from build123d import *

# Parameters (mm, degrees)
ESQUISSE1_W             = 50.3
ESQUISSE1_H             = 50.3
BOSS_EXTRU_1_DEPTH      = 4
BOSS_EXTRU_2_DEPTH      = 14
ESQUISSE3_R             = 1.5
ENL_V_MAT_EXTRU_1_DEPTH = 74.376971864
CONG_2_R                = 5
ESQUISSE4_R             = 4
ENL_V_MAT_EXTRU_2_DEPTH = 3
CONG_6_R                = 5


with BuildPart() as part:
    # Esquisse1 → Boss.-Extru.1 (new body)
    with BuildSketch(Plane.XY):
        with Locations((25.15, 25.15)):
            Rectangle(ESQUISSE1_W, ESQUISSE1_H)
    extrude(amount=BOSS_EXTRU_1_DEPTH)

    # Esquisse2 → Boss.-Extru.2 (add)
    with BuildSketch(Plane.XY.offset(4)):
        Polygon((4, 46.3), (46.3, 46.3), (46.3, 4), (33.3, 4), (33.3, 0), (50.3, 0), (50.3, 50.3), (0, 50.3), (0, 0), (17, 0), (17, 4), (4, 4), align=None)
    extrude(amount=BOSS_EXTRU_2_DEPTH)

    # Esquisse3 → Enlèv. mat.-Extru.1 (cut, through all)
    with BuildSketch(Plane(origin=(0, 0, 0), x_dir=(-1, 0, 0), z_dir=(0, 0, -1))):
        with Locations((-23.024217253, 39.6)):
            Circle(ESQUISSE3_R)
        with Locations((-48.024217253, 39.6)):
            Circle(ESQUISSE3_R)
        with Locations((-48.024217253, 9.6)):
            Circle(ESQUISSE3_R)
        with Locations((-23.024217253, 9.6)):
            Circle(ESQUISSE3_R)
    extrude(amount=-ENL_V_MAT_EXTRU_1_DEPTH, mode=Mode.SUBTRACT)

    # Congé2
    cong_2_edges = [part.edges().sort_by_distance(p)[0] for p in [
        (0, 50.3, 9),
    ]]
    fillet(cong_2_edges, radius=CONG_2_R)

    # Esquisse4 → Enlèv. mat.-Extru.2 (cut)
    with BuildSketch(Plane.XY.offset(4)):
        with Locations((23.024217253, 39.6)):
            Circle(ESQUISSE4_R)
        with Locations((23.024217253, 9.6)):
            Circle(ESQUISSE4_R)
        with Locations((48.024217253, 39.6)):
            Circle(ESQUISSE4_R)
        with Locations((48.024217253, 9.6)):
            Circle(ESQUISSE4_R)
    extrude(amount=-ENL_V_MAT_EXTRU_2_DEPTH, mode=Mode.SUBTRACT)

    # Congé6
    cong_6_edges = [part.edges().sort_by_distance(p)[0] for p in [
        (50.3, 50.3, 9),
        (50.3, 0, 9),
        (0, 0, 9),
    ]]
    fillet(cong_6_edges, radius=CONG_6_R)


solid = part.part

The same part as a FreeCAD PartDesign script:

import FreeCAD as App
import Part
import Sketcher
from FreeCAD import Vector
Q = App.Units.Quantity


def edges_at(feature, points):
    """Names of the edges that pass closest to the given points."""
    edges = feature.Shape.Edges
    near = lambda p: min(range(len(edges)), key=lambda i: edges[i].distToShape(Part.Vertex(*p))[0])
    return sorted({f"Edge{near(p) + 1}" for p in points})

doc = App.newDocument("Part")
body = doc.addObject("PartDesign::Body", "Body")

# Sketch on XY plane
sketch1 = doc.addObject("Sketcher::SketchObject", "Sketch")
body.addObject(sketch1)
sketch1.AttachmentSupport = (doc.XY_Plane, [""])
sketch1.MapMode = "FlatFace"
sketch1.addGeometry(Part.LineSegment(Vector(0, 50, 0), Vector(0, 0, 0)), False)
sketch1.addGeometry(Part.LineSegment(Vector(0, 0, 0), Vector(50, 0, 0)), False)
sketch1.addGeometry(Part.LineSegment(Vector(50, 0, 0), Vector(50, 50, 0)), False)
sketch1.addGeometry(Part.LineSegment(Vector(50, 50, 0), Vector(0, 50, 0)), False)
sketch1.addConstraint(Sketcher.Constraint("Coincident", 0, 2, 1, 1))
sketch1.addConstraint(Sketcher.Constraint("Coincident", 1, 2, 2, 1))
sketch1.addConstraint(Sketcher.Constraint("Coincident", 2, 2, 3, 1))
sketch1.addConstraint(Sketcher.Constraint("Coincident", 3, 2, 0, 1))
sketch1.addConstraint(Sketcher.Constraint("Vertical", 0))
sketch1.addConstraint(Sketcher.Constraint("Horizontal", 1))
sketch1.addConstraint(Sketcher.Constraint("Vertical", 2))
sketch1.addConstraint(Sketcher.Constraint("Horizontal", 3))
sketch1.addConstraint(Sketcher.Constraint("Coincident", 0, 2, -1, 1))
sketch1.addConstraint(Sketcher.Constraint("Equal", 3, 0))
sketch1.addConstraint(Sketcher.Constraint("DistanceX", 1, 1, 1, 2, Q("50.3 mm")))
pad1 = doc.addObject("PartDesign::Pad", "Pad")
body.addObject(pad1)
pad1.Profile = sketch1
pad1.Length = 4

# Sketch on XY plane
sketch2 = doc.addObject("Sketcher::SketchObject", "Sketch001")
body.addObject(sketch2)
sketch2.AttachmentSupport = (doc.XY_Plane, [""])
sketch2.MapMode = "FlatFace"
sketch2.AttachmentOffset = App.Placement(Vector(0, 0, 4), App.Rotation())
sketch2.addGeometry(Part.LineSegment(Vector(4, 46.3, 0), Vector(46.3, 46.3, 0)), False)
sketch2.addGeometry(Part.LineSegment(Vector(46.3, 46.3, 0), Vector(46.3, 4, 0)), False)
sketch2.addGeometry(Part.LineSegment(Vector(46.3, 4, 0), Vector(33.3, 4, 0)), False)
sketch2.addGeometry(Part.LineSegment(Vector(33.3, 4, 0), Vector(33.3, 0, 0)), False)
sketch2.addGeometry(Part.LineSegment(Vector(33.3, 0, 0), Vector(50.3, 0, 0)), False)
sketch2.addGeometry(Part.LineSegment(Vector(50.3, 0, 0), Vector(50.3, 50.3, 0)), False)
sketch2.addGeometry(Part.LineSegment(Vector(50.3, 50.3, 0), Vector(0, 50.3, 0)), False)
sketch2.addGeometry(Part.LineSegment(Vector(0, 50.3, 0), Vector(0, 0, 0)), False)
sketch2.addGeometry(Part.LineSegment(Vector(0, 0, 0), Vector(17, 0, 0)), False)
sketch2.addGeometry(Part.LineSegment(Vector(17, 0, 0), Vector(17, 4, 0)), False)
sketch2.addGeometry(Part.LineSegment(Vector(17, 4, 0), Vector(4, 4, 0)), False)
sketch2.addGeometry(Part.LineSegment(Vector(4, 4, 0), Vector(4, 46.3, 0)), False)
sketch2.addConstraint(Sketcher.Constraint("Coincident", 0, 2, 1, 1))
sketch2.addConstraint(Sketcher.Constraint("Coincident", 1, 2, 2, 1))
sketch2.addConstraint(Sketcher.Constraint("Coincident", 2, 2, 3, 1))
sketch2.addConstraint(Sketcher.Constraint("Coincident", 3, 2, 4, 1))
sketch2.addConstraint(Sketcher.Constraint("Coincident", 4, 2, 5, 1))
sketch2.addConstraint(Sketcher.Constraint("Coincident", 5, 2, 6, 1))
sketch2.addConstraint(Sketcher.Constraint("Coincident", 6, 2, 7, 1))
sketch2.addConstraint(Sketcher.Constraint("Coincident", 7, 2, 8, 1))
sketch2.addConstraint(Sketcher.Constraint("Coincident", 8, 2, 9, 1))
sketch2.addConstraint(Sketcher.Constraint("Coincident", 9, 2, 10, 1))
sketch2.addConstraint(Sketcher.Constraint("Coincident", 10, 2, 11, 1))
sketch2.addConstraint(Sketcher.Constraint("Coincident", 11, 2, 0, 1))
sketch2.addConstraint(Sketcher.Constraint("Horizontal", 0))
sketch2.addConstraint(Sketcher.Constraint("Vertical", 1))
sketch2.addConstraint(Sketcher.Constraint("Horizontal", 2))
sketch2.addConstraint(Sketcher.Constraint("Vertical", 3))
sketch2.addConstraint(Sketcher.Constraint("Horizontal", 4))
sketch2.addConstraint(Sketcher.Constraint("Vertical", 5))
sketch2.addConstraint(Sketcher.Constraint("Horizontal", 6))
sketch2.addConstraint(Sketcher.Constraint("Vertical", 7))
sketch2.addConstraint(Sketcher.Constraint("Horizontal", 8))
sketch2.addConstraint(Sketcher.Constraint("Vertical", 9))
sketch2.addConstraint(Sketcher.Constraint("Horizontal", 10))
sketch2.addConstraint(Sketcher.Constraint("Vertical", 11))
sketch2.addConstraint(Sketcher.Constraint("Coincident", 7, 2, -1, 1))
sketch2.addConstraint(Sketcher.Constraint("PointOnObject", 3, 2, -1))
sketch2.addConstraint(Sketcher.Constraint("Horizontal", 2, 2, 9, 2))
sketch2.addConstraint(Sketcher.Constraint("Equal", 4, 8))
sketch2.addConstraint(Sketcher.Constraint("Equal", 2, 10))
sketch2.addConstraint(Sketcher.Constraint("Equal", 0, 1))
sketch2.addConstraint(Sketcher.Constraint("Equal", 6, 5))
sketch2.addConstraint(Sketcher.Constraint("DistanceX", 2, 2, 2, 1, Q("13 mm")))
sketch2.addConstraint(Sketcher.Constraint("DistanceX", 4, 1, 4, 2, Q("17 mm")))
sketch2.addConstraint(Sketcher.Constraint("DistanceY", 3, 2, 3, 1, Q("4 mm")))
sketch2.addConstraint(Sketcher.Constraint("DistanceX", 0, 1, 0, 2, Q("42.3 mm")))
pad2 = doc.addObject("PartDesign::Pad", "Pad001")
body.addObject(pad2)
pad2.Profile = sketch2
pad2.Length = 14

# Sketch on XY plane
sketch3 = doc.addObject("Sketcher::SketchObject", "Sketch002")
body.addObject(sketch3)
sketch3.AttachmentSupport = (doc.XY_Plane, [""])
sketch3.MapMode = "FlatFace"
sketch3.addGeometry(Part.Circle(Vector(23, 39.6, 0), Vector(0, 0, 1), 1.5), False)
sketch3.addGeometry(Part.Circle(Vector(48, 39.6, 0), Vector(0, 0, 1), 1.5), False)
sketch3.addGeometry(Part.Circle(Vector(48, 9.6, 0), Vector(0, 0, 1), 1.5), False)
sketch3.addGeometry(Part.Circle(Vector(23, 9.6, 0), Vector(0, 0, 1), 1.5), False)
sketch3.addConstraint(Sketcher.Constraint("Equal", 0, 1))
sketch3.addConstraint(Sketcher.Constraint("Equal", 1, 2))
sketch3.addConstraint(Sketcher.Constraint("Equal", 2, 3))
sketch3.addConstraint(Sketcher.Constraint("Horizontal", 0, 3, 1, 3))
sketch3.addConstraint(Sketcher.Constraint("Horizontal", 2, 3, 3, 3))
sketch3.addConstraint(Sketcher.Constraint("Vertical", 1, 3, 2, 3))
sketch3.addConstraint(Sketcher.Constraint("Vertical", 0, 3, 3, 3))
sketch3.addConstraint(Sketcher.Constraint("Diameter", 0, Q("3 mm")))
sketch3.addConstraint(Sketcher.Constraint("DistanceX", 0, 3, 1, 3, Q("25 mm")))
sketch3.addConstraint(Sketcher.Constraint("DistanceY", 2, 3, 1, 3, Q("30 mm")))
sketch3.addConstraint(Sketcher.Constraint("DistanceY", -1, 1, 0, 3, Q("39.6 mm")))
sketch3.addConstraint(Sketcher.Constraint("DistanceX", -1, 1, 0, 3, Q("23.024217 mm")))
pocket1 = doc.addObject("PartDesign::Pocket", "Pocket")
body.addObject(pocket1)
pocket1.Profile = sketch3
pocket1.Type = "ThroughAll"
pocket1.Reversed = True
doc.recompute()

fillet = doc.addObject("PartDesign::Fillet", "Fillet")
body.addObject(fillet)
fillet.Base = (pocket1, edges_at(pocket1, [(0, 50.3, 9)]))
fillet.Radius = 5

# Sketch on XY plane
sketch4 = doc.addObject("Sketcher::SketchObject", "Sketch003")
body.addObject(sketch4)
sketch4.AttachmentSupport = (doc.XY_Plane, [""])
sketch4.MapMode = "FlatFace"
sketch4.AttachmentOffset = App.Placement(Vector(0, 0, 4), App.Rotation())
sketch4.addGeometry(Part.Circle(Vector(23, 39.6, 0), Vector(0, 0, 1), 4), False)
sketch4.addGeometry(Part.Circle(Vector(23, 9.6, 0), Vector(0, 0, 1), 4), False)
sketch4.addGeometry(Part.Circle(Vector(48, 39.6, 0), Vector(0, 0, 1), 4), False)
sketch4.addGeometry(Part.Circle(Vector(48, 9.6, 0), Vector(0, 0, 1), 4), False)
sketch4.addConstraint(Sketcher.Constraint("Equal", 0, 1))
sketch4.addConstraint(Sketcher.Constraint("Equal", 1, 2))
sketch4.addConstraint(Sketcher.Constraint("Equal", 2, 3))
sketch4.addConstraint(Sketcher.Constraint("Horizontal", 0, 3, 2, 3))
sketch4.addConstraint(Sketcher.Constraint("Horizontal", 1, 3, 3, 3))
sketch4.addConstraint(Sketcher.Constraint("Vertical", 0, 3, 1, 3))
sketch4.addConstraint(Sketcher.Constraint("Vertical", 2, 3, 3, 3))
sketch4.addConstraint(Sketcher.Constraint("Diameter", 0, Q("8 mm")))
sketch4.addConstraint(Sketcher.Constraint("DistanceY", 1, 3, 0, 3, Q("30 mm")))
sketch4.addConstraint(Sketcher.Constraint("DistanceX", 0, 3, 2, 3, Q("25 mm")))
sketch4.addConstraint(Sketcher.Constraint("DistanceY", -1, 1, 0, 3, Q("39.6 mm")))
sketch4.addConstraint(Sketcher.Constraint("DistanceX", -1, 1, 0, 3, Q("23.024217 mm")))
pocket2 = doc.addObject("PartDesign::Pocket", "Pocket001")
body.addObject(pocket2)
pocket2.Profile = sketch4
pocket2.Length = 3
doc.recompute()

fillet2 = doc.addObject("PartDesign::Fillet", "Fillet001")
body.addObject(fillet2)
fillet2.Base = (pocket2, edges_at(pocket2, [(50.3, 50.3, 9), (50.3, 0, 9), (0, 0, 9)]))
fillet2.Radius = 5

doc.recompute()
